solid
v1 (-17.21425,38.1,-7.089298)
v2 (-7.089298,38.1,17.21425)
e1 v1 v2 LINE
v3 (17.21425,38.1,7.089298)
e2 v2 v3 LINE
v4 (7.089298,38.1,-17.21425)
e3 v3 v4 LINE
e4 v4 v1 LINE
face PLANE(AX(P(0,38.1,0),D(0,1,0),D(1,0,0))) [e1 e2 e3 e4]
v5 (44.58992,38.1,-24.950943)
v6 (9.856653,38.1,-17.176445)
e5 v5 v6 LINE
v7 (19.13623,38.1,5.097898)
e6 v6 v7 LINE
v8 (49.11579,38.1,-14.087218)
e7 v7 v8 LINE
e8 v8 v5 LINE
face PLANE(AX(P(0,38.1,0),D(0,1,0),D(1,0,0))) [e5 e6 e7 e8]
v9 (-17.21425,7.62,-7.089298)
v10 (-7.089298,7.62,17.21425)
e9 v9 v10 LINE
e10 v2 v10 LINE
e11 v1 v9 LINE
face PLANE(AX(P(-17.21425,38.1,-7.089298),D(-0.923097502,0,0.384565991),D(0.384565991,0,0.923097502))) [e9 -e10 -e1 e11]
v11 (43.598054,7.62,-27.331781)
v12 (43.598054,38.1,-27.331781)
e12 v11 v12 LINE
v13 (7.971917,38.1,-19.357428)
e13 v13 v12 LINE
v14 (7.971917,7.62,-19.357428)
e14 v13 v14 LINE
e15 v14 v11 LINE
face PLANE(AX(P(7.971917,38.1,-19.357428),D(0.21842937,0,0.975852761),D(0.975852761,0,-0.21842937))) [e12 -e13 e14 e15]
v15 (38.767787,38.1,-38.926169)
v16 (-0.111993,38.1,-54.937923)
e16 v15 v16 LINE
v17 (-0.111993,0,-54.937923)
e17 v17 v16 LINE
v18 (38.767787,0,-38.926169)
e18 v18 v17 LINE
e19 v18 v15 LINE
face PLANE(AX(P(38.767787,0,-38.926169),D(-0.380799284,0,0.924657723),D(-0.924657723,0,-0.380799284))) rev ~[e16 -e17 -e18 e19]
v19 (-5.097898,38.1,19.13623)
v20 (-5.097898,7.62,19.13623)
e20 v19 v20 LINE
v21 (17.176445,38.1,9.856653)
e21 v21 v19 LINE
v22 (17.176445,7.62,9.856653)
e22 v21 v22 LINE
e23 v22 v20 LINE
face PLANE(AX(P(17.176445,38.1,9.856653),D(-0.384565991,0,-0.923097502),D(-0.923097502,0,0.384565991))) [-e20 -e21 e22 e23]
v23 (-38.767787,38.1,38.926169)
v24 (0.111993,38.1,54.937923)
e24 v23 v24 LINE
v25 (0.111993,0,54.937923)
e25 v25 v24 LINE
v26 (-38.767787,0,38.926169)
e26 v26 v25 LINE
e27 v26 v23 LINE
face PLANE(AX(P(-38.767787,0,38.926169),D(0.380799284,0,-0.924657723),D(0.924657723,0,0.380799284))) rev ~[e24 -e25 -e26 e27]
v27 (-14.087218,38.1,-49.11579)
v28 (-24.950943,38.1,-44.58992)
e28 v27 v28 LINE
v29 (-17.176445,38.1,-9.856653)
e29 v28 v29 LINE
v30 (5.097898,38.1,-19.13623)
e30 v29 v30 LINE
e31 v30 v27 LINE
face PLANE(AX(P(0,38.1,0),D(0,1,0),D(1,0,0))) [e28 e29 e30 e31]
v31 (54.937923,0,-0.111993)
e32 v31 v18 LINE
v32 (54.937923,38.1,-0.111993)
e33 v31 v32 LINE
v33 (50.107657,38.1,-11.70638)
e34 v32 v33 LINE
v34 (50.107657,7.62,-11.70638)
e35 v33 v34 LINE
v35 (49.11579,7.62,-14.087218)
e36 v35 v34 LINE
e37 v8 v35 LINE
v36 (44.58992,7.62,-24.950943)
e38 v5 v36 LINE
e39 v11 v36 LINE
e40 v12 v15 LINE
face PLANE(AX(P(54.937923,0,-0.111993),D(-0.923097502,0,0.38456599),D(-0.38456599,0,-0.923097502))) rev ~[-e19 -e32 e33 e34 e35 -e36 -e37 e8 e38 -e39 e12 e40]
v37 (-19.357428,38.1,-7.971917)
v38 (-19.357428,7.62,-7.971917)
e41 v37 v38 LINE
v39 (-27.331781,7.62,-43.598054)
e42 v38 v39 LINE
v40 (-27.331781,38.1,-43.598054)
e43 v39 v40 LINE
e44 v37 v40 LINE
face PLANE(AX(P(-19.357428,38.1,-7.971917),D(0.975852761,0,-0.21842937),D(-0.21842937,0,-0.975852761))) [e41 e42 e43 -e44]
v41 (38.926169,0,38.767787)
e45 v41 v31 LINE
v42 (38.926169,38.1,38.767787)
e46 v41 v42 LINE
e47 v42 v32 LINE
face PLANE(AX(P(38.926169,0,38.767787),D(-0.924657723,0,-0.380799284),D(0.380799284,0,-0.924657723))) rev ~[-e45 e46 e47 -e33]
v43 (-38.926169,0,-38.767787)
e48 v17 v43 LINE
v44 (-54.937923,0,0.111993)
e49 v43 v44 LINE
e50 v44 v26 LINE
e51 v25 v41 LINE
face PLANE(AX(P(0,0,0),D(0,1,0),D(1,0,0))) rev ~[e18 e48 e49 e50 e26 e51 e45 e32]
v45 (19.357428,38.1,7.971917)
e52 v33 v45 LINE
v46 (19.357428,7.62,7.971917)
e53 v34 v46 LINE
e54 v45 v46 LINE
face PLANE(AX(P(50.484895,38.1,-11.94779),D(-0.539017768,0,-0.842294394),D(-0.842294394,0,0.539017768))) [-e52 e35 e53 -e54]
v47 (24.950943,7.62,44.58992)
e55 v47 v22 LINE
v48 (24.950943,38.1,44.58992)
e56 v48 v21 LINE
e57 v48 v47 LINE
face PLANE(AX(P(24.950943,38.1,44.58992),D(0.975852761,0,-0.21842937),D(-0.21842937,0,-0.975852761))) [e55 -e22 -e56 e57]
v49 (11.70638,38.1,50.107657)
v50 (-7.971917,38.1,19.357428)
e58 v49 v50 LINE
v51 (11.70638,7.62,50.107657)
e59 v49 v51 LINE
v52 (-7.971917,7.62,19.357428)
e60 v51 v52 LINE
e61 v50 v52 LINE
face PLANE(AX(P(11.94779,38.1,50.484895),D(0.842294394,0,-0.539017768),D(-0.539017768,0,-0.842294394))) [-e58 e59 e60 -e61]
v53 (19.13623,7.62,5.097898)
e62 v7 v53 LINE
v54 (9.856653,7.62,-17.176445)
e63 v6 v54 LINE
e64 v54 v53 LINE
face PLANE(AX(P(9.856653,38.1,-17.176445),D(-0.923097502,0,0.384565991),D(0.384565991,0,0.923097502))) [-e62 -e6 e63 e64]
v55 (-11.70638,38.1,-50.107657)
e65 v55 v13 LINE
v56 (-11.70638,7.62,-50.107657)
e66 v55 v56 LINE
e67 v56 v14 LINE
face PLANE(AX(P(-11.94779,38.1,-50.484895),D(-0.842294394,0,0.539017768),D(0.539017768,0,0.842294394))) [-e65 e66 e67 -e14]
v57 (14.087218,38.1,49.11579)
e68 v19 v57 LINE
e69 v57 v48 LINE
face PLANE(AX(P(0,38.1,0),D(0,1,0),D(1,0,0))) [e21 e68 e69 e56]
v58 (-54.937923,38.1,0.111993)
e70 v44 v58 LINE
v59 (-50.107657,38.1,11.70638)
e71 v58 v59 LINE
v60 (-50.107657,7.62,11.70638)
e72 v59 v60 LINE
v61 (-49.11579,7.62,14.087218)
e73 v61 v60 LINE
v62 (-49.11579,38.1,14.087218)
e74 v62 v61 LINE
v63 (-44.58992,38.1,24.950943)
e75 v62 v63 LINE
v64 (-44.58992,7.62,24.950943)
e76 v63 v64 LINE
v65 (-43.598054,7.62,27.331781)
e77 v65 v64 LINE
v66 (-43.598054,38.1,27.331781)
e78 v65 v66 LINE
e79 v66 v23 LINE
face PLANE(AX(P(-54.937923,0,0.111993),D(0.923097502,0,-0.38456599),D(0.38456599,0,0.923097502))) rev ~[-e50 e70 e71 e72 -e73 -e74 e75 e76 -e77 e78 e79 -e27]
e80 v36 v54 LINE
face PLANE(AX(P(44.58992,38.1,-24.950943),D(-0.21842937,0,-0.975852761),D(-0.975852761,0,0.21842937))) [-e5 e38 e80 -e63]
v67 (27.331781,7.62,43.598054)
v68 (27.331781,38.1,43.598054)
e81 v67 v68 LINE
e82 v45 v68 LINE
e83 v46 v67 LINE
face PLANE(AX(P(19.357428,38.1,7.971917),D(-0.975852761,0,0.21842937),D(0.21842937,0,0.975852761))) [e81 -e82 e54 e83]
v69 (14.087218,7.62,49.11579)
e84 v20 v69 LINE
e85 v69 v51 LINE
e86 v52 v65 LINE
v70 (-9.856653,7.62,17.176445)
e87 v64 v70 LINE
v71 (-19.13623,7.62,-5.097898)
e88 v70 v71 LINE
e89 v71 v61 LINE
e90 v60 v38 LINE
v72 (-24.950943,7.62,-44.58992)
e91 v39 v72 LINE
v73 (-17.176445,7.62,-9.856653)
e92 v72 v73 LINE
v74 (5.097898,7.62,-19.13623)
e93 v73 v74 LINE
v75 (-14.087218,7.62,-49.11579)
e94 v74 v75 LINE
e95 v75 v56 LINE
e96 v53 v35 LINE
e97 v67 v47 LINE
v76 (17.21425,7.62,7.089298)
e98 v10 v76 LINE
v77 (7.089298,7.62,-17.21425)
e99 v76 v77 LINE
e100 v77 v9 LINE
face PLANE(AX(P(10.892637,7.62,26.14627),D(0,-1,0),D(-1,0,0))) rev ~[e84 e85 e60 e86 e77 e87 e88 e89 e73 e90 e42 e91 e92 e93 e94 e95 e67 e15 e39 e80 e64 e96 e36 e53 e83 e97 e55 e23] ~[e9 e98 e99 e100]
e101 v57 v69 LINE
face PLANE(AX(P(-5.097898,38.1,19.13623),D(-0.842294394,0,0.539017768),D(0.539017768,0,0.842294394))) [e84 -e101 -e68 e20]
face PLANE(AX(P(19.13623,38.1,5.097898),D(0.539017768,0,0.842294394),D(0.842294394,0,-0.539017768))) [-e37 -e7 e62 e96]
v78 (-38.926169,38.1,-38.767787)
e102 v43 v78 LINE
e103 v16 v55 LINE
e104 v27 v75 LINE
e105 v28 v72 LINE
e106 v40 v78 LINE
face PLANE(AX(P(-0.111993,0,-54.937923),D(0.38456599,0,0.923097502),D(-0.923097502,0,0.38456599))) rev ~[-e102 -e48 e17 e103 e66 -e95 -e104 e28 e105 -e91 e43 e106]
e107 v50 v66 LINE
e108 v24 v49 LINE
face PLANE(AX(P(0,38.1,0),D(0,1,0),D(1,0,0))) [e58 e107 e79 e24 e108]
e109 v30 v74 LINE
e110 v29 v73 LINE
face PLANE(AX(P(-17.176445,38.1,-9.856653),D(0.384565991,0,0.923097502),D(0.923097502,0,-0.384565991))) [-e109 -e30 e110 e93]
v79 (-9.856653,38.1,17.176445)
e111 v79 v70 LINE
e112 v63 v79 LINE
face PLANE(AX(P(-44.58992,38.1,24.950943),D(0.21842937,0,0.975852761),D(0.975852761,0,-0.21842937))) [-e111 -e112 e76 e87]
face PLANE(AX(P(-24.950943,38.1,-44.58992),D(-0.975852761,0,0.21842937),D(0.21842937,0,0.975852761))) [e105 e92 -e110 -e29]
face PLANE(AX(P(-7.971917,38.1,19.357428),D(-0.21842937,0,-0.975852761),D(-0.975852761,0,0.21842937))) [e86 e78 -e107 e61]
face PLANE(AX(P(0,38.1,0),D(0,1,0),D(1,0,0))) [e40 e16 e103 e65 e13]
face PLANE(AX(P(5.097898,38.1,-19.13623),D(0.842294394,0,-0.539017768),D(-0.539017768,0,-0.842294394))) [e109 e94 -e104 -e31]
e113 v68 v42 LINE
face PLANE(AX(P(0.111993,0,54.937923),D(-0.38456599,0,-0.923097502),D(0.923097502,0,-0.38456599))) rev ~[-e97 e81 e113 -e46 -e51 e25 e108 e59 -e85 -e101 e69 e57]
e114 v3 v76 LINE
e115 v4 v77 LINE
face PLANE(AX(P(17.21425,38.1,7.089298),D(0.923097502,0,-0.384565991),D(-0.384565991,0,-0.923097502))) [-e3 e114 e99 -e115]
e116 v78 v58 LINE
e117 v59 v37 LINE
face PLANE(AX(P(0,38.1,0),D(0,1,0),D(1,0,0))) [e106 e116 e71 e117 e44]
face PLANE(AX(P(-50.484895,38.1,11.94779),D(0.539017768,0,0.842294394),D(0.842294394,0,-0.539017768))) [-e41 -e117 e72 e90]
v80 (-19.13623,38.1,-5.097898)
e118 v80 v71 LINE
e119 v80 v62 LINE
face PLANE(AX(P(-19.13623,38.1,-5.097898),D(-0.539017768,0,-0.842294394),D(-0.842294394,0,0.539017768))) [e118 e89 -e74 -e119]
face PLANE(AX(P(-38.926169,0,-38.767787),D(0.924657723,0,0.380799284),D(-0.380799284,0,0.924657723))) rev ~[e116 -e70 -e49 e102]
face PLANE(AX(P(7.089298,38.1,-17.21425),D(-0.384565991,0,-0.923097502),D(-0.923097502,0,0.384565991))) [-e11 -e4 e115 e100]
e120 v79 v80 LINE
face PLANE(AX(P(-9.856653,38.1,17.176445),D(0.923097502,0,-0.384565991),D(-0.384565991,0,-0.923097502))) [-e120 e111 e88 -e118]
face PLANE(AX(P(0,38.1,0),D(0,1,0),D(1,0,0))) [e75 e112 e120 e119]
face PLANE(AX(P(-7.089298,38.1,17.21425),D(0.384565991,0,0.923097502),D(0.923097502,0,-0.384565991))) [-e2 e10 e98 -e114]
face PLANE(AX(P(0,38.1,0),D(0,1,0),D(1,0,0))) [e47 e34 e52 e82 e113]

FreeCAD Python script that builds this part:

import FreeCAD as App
import Part
import Sketcher
from FreeCAD import Vector
Q = App.Units.Quantity

doc = App.newDocument("Part")
body = doc.addObject("PartDesign::Body", "Body")

sketch1 = doc.addObject("Sketcher::SketchObject", "Sketch")
body.addObject(sketch1)
sketch1.AttachmentSupport = (doc.XZ_Plane, [""])
sketch1.MapMode = "FlatFace"
sketch1.addGeometry(Part.LineSegment(Vector(0, -55, 0), Vector(-39, -39, 0)), False)
sketch1.addGeometry(Part.LineSegment(Vector(-39, -39, 0), Vector(-55, 0, 0)), False)
sketch1.addGeometry(Part.LineSegment(Vector(-55, 0, 0), Vector(-39, 39, 0)), False)
sketch1.addGeometry(Part.LineSegment(Vector(-39, 39, 0), Vector(0, 55, 0)), False)
sketch1.addGeometry(Part.LineSegment(Vector(0, 55, 0), Vector(39, 39, 0)), False)
sketch1.addGeometry(Part.LineSegment(Vector(39, 39, 0), Vector(55, 0, 0)), False)
sketch1.addGeometry(Part.LineSegment(Vector(55, 0, 0), Vector(39, -39, 0)), False)
sketch1.addGeometry(Part.LineSegment(Vector(39, -39, 0), Vector(0, -55, 0)), False)
sketch1.addConstraint(Sketcher.Constraint("Coincident", 0, 2, 1, 1))
sketch1.addConstraint(Sketcher.Constraint("Coincident", 1, 2, 2, 1))
sketch1.addConstraint(Sketcher.Constraint("Coincident", 2, 2, 3, 1))
sketch1.addConstraint(Sketcher.Constraint("Coincident", 3, 2, 4, 1))
sketch1.addConstraint(Sketcher.Constraint("Coincident", 4, 2, 5, 1))
sketch1.addConstraint(Sketcher.Constraint("Coincident", 5, 2, 6, 1))
sketch1.addConstraint(Sketcher.Constraint("Coincident", 6, 2, 7, 1))
sketch1.addConstraint(Sketcher.Constraint("Coincident", 7, 2, 0, 1))
sketch1.addConstraint(Sketcher.Constraint("Symmetric", 0, 2, 4, 2, -1, 1))
sketch1.addConstraint(Sketcher.Constraint("Symmetric", 1, 2, 5, 2, -1, 1))
sketch1.addConstraint(Sketcher.Constraint("Symmetric", 2, 2, 6, 2, -1, 1))
sketch1.addConstraint(Sketcher.Constraint("Symmetric", 3, 2, 7, 2, -1, 1))
sketch1.addConstraint(Sketcher.Constraint("Perpendicular", 0, 2))
sketch1.addConstraint(Sketcher.Constraint("Perpendicular", 1, 3))
sketch1.addConstraint(Sketcher.Constraint("Equal", 0, 1))
sketch1.addConstraint(Sketcher.Constraint("Equal", 1, 2))
sketch1.addConstraint(Sketcher.Constraint("Equal", 2, 3))
sketch1.addConstraint(Sketcher.Constraint("DistanceY", 0, 2, 1, 2, Q("1.5307 in")))
sketch1.addConstraint(Sketcher.Constraint("DistanceX", 0, 2, -1, 1, Q("38.926169 mm")))
sketch1.addConstraint(Sketcher.Constraint("DistanceY", 1, 2, 3, 2, Q("54.825931 mm")))
pad1 = doc.addObject("PartDesign::Pad", "Pad")
body.addObject(pad1)
pad1.Profile = sketch1
pad1.Length = Q("1.5 in")
pad1.Reversed = True

sketch2 = doc.addObject("Sketcher::SketchObject", "Sketch001")
body.addObject(sketch2)
sketch2.AttachmentSupport = (doc.XZ_Plane, [""])
sketch2.MapMode = "FlatFace"
sketch2.AttachmentOffset = App.Placement(Vector(0, 0, -1.5 * 25.4), App.Rotation())
sketch2.addGeometry(Part.LineSegment(Vector(44.6, -25, 0), Vector(44, -27.4, 0)), False)
sketch2.addGeometry(Part.LineSegment(Vector(44, -27.4, 0), Vector(8, -19.4, 0)), False)
sketch2.addGeometry(Part.LineSegment(Vector(8, -19.4, 0), Vector(-11.9, -50.5, 0)), False)
sketch2.addGeometry(Part.LineSegment(Vector(-11.9, -50.5, 0), Vector(-14.1, -49.1, 0)), False)
sketch2.addGeometry(Part.LineSegment(Vector(-14.1, -49.1, 0), Vector(5.1, -19.1, 0)), False)
sketch2.addGeometry(Part.LineSegment(Vector(5.1, -19.1, 0), Vector(-17.2, -9.9, 0)), False)
sketch2.addGeometry(Part.LineSegment(Vector(-17.2, -9.9, 0), Vector(-25, -44.6, 0)), False)
sketch2.addGeometry(Part.LineSegment(Vector(-25, -44.6, 0), Vector(-27.4, -44, 0)), False)
sketch2.addGeometry(Part.LineSegment(Vector(-27.4, -44, 0), Vector(-19.4, -8, 0)), False)
sketch2.addGeometry(Part.LineSegment(Vector(-19.4, -8, 0), Vector(-50.5, 11.9, 0)), False)
sketch2.addGeometry(Part.LineSegment(Vector(-50.5, 11.9, 0), Vector(-49.1, 14.1, 0)), False)
sketch2.addGeometry(Part.LineSegment(Vector(-49.1, 14.1, 0), Vector(-19.1, -5.1, 0)), False)
sketch2.addGeometry(Part.LineSegment(Vector(-19.1, -5.1, 0), Vector(-9.9, 17.2, 0)), False)
sketch2.addGeometry(Part.LineSegment(Vector(-9.9, 17.2, 0), Vector(-44.6, 25, 0)), False)
sketch2.addGeometry(Part.LineSegment(Vector(-44.6, 25, 0), Vector(-44, 27.4, 0)), False)
sketch2.addGeometry(Part.LineSegment(Vector(-44, 27.4, 0), Vector(-8, 19.4, 0)), False)
sketch2.addGeometry(Part.LineSegment(Vector(-8, 19.4, 0), Vector(11.9, 50.5, 0)), False)
sketch2.addGeometry(Part.LineSegment(Vector(11.9, 50.5, 0), Vector(14.1, 49.1, 0)), False)
sketch2.addGeometry(Part.LineSegment(Vector(14.1, 49.1, 0), Vector(-5.1, 19.1, 0)), False)
sketch2.addGeometry(Part.LineSegment(Vector(-5.1, 19.1, 0), Vector(17.2, 9.9, 0)), False)
sketch2.addGeometry(Part.LineSegment(Vector(17.2, 9.9, 0), Vector(25, 44.6, 0)), False)
sketch2.addGeometry(Part.LineSegment(Vector(25, 44.6, 0), Vector(27.4, 44, 0)), False)
sketch2.addGeometry(Part.LineSegment(Vector(27.4, 44, 0), Vector(19.4, 8, 0)), False)
sketch2.addGeometry(Part.LineSegment(Vector(19.4, 8, 0), Vector(50.5, -11.9, 0)), False)
sketch2.addGeometry(Part.LineSegment(Vector(50.5, -11.9, 0), Vector(49.1, -14.1, 0)), False)
sketch2.addGeometry(Part.LineSegment(Vector(49.1, -14.1, 0), Vector(19.1, 5.1, 0)), False)
sketch2.addGeometry(Part.LineSegment(Vector(19.1, 5.1, 0), Vector(9.9, -17.2, 0)), False)
sketch2.addGeometry(Part.LineSegment(Vector(9.9, -17.2, 0), Vector(44.6, -25, 0)), False)
sketch2.addGeometry(Part.LineSegment(Vector(7.1, -17.2, 0), Vector(17.2, 7.1, 0)), False)
sketch2.addGeometry(Part.LineSegment(Vector(17.2, 7.1, 0), Vector(-7.1, 17.2, 0)), False)
sketch2.addGeometry(Part.LineSegment(Vector(-7.1, 17.2, 0), Vector(-17.2, -7.1, 0)), False)
sketch2.addGeometry(Part.LineSegment(Vector(-17.2, -7.1, 0), Vector(7.1, -17.2, 0)), False)
sketch2.addConstraint(Sketcher.Constraint("Coincident", 0, 2, 1, 1))
sketch2.addConstraint(Sketcher.Constraint("Coincident", 1, 2, 2, 1))
sketch2.addConstraint(Sketcher.Constraint("Coincident", 2, 2, 3, 1))
sketch2.addConstraint(Sketcher.Constraint("Coincident", 3, 2, 4, 1))
sketch2.addConstraint(Sketcher.Constraint("Coincident", 4, 2, 5, 1))
sketch2.addConstraint(Sketcher.Constraint("Coincident", 5, 2, 6, 1))
sketch2.addConstraint(Sketcher.Constraint("Coincident", 6, 2, 7, 1))
sketch2.addConstraint(Sketcher.Constraint("Coincident", 7, 2, 8, 1))
sketch2.addConstraint(Sketcher.Constraint("Coincident", 8, 2, 9, 1))
sketch2.addConstraint(Sketcher.Constraint("Coincident", 9, 2, 10, 1))
sketch2.addConstraint(Sketcher.Constraint("Coincident", 10, 2, 11, 1))
sketch2.addConstraint(Sketcher.Constraint("Coincident", 11, 2, 12, 1))
sketch2.addConstraint(Sketcher.Constraint("Coincident", 12, 2, 13, 1))
sketch2.addConstraint(Sketcher.Constraint("Coincident", 13, 2, 14, 1))
sketch2.addConstraint(Sketcher.Constraint("Coincident", 14, 2, 15, 1))
sketch2.addConstraint(Sketcher.Constraint("Coincident", 15, 2, 16, 1))
sketch2.addConstraint(Sketcher.Constraint("Coincident", 16, 2, 17, 1))
sketch2.addConstraint(Sketcher.Constraint("Coincident", 17, 2, 18, 1))
sketch2.addConstraint(Sketcher.Constraint("Coincident", 18, 2, 19, 1))
sketch2.addConstraint(Sketcher.Constraint("Coincident", 19, 2, 20, 1))
sketch2.addConstraint(Sketcher.Constraint("Coincident", 20, 2, 21, 1))
sketch2.addConstraint(Sketcher.Constraint("Coincident", 21, 2, 22, 1))
sketch2.addConstraint(Sketcher.Constraint("Coincident", 22, 2, 23, 1))
sketch2.addConstraint(Sketcher.Constraint("Coincident", 23, 2, 24, 1))
sketch2.addConstraint(Sketcher.Constraint("Coincident", 24, 2, 25, 1))
sketch2.addConstraint(Sketcher.Constraint("Coincident", 25, 2, 26, 1))
sketch2.addConstraint(Sketcher.Constraint("Coincident", 26, 2, 27, 1))
sketch2.addConstraint(Sketcher.Constraint("Coincident", 27, 2, 0, 1))
sketch2.addConstraint(Sketcher.Constraint("Coincident", 28, 2, 29, 1))
sketch2.addConstraint(Sketcher.Constraint("Coincident", 29, 2, 30, 1))
sketch2.addConstraint(Sketcher.Constraint("Coincident", 30, 2, 31, 1))
sketch2.addConstraint(Sketcher.Constraint("Coincident", 31, 2, 28, 1))
sketch2.addConstraint(Sketcher.Constraint("Symmetric", 0, 2, 14, 2, -1, 1))
sketch2.addConstraint(Sketcher.Constraint("Symmetric", 1, 2, 15, 2, -1, 1))
sketch2.addConstraint(Sketcher.Constraint("Symmetric", 2, 2, 16, 2, -1, 1))
sketch2.addConstraint(Sketcher.Constraint("Symmetric", 3, 2, 17, 2, -1, 1))
sketch2.addConstraint(Sketcher.Constraint("Symmetric", 4, 2, 18, 2, -1, 1))
sketch2.addConstraint(Sketcher.Constraint("Symmetric", 5, 2, 19, 2, -1, 1))
sketch2.addConstraint(Sketcher.Constraint("Symmetric", 6, 2, 20, 2, -1, 1))
sketch2.addConstraint(Sketcher.Constraint("Symmetric", 7, 2, 21, 2, -1, 1))
sketch2.addConstraint(Sketcher.Constraint("Symmetric", 8, 2, 22, 2, -1, 1))
sketch2.addConstraint(Sketcher.Constraint("Symmetric", 9, 2, 23, 2, -1, 1))
sketch2.addConstraint(Sketcher.Constraint("Symmetric", 10, 2, 24, 2, -1, 1))
sketch2.addConstraint(Sketcher.Constraint("Symmetric", 11, 2, 25, 2, -1, 1))
sketch2.addConstraint(Sketcher.Constraint("Symmetric", 12, 2, 26, 2, -1, 1))
sketch2.addConstraint(Sketcher.Constraint("Symmetric", 13, 2, 27, 2, -1, 1))
sketch2.addConstraint(Sketcher.Constraint("Symmetric", 28, 2, 30, 2, -1, 1))
sketch2.addConstraint(Sketcher.Constraint("Symmetric", 29, 2, 31, 2, -1, 1))
sketch2.addConstraint(Sketcher.Constraint("Perpendicular", 0, 1))
sketch2.addConstraint(Sketcher.Constraint("Perpendicular", 2, 3))
sketch2.addConstraint(Sketcher.Constraint("Perpendicular", 3, 4))
sketch2.addConstraint(Sketcher.Constraint("Perpendicular", 1, 6))
sketch2.addConstraint(Sketcher.Constraint("Perpendicular", 6, 7))
sketch2.addConstraint(Sketcher.Constraint("Perpendicular", 7, 8))
sketch2.addConstraint(Sketcher.Constraint("Perpendicular", 4, 9))
sketch2.addConstraint(Sketcher.Constraint("Perpendicular", 9, 10))
sketch2.addConstraint(Sketcher.Constraint("Perpendicular", 10, 11))
sketch2.addConstraint(Sketcher.Constraint("Perpendicular", 5, 12))
sketch2.addConstraint(Sketcher.Constraint("Perpendicular", 8, 13))
sketch2.addConstraint(Sketcher.Constraint("Parallel", 26, 28))
sketch2.addConstraint(Sketcher.Constraint("Perpendicular", 28, 29))
sketch2.addConstraint(Sketcher.Constraint("Equal", 1, 2))
sketch2.addConstraint(Sketcher.Constraint("Equal", 0, 3))
sketch2.addConstraint(Sketcher.Constraint("Equal", 4, 6))
sketch2.addConstraint(Sketcher.Constraint("Equal", 3, 7))
sketch2.addConstraint(Sketcher.Constraint("Equal", 2, 8))
sketch2.addConstraint(Sketcher.Constraint("Equal", 8, 9))
sketch2.addConstraint(Sketcher.Constraint("Equal", 7, 10))
sketch2.addConstraint(Sketcher.Constraint("Equal", 6, 11))
sketch2.addConstraint(Sketcher.Constraint("Equal", 5, 12))
sketch2.addConstraint(Sketcher.Constraint("Equal", 11, 13))
sketch2.addConstraint(Sketcher.Constraint("Equal", 28, 29))
sketch2.addConstraint(Sketcher.Constraint("Distance", 0, Q("0.1 in")))
sketch2.addConstraint(Sketcher.Constraint("Distance", 5, Q("0.95 in")))
sketch2.addConstraint(Sketcher.Constraint("DistanceX", 2, 2, 0, 2, Q("55.9829 mm")))
sketch2.addConstraint(Sketcher.Constraint("DistanceX", 6, 2, 5, 2, Q("7.774498 mm")))
sketch2.addConstraint(Sketcher.Constraint("DistanceY", 5, 2, 12, 2, Q("27.033098 mm")))
sketch2.addConstraint(Sketcher.Constraint("DistanceY", 25, 2, 28, 2, Q("1.9914 mm")))
sketch2.addConstraint(Sketcher.Constraint("DistanceX", -1, 1, 0, 2, Q("44.03511 mm")))
sketch2.addConstraint(Sketcher.Constraint("DistanceY", 0, 2, -1, 1, Q("27.429609 mm")))
pocket1 = doc.addObject("PartDesign::Pocket", "Pocket")
body.addObject(pocket1)
pocket1.Profile = sketch2
pocket1.Length = Q("1.2 in")
pocket1.Reversed = True

doc.recompute()
